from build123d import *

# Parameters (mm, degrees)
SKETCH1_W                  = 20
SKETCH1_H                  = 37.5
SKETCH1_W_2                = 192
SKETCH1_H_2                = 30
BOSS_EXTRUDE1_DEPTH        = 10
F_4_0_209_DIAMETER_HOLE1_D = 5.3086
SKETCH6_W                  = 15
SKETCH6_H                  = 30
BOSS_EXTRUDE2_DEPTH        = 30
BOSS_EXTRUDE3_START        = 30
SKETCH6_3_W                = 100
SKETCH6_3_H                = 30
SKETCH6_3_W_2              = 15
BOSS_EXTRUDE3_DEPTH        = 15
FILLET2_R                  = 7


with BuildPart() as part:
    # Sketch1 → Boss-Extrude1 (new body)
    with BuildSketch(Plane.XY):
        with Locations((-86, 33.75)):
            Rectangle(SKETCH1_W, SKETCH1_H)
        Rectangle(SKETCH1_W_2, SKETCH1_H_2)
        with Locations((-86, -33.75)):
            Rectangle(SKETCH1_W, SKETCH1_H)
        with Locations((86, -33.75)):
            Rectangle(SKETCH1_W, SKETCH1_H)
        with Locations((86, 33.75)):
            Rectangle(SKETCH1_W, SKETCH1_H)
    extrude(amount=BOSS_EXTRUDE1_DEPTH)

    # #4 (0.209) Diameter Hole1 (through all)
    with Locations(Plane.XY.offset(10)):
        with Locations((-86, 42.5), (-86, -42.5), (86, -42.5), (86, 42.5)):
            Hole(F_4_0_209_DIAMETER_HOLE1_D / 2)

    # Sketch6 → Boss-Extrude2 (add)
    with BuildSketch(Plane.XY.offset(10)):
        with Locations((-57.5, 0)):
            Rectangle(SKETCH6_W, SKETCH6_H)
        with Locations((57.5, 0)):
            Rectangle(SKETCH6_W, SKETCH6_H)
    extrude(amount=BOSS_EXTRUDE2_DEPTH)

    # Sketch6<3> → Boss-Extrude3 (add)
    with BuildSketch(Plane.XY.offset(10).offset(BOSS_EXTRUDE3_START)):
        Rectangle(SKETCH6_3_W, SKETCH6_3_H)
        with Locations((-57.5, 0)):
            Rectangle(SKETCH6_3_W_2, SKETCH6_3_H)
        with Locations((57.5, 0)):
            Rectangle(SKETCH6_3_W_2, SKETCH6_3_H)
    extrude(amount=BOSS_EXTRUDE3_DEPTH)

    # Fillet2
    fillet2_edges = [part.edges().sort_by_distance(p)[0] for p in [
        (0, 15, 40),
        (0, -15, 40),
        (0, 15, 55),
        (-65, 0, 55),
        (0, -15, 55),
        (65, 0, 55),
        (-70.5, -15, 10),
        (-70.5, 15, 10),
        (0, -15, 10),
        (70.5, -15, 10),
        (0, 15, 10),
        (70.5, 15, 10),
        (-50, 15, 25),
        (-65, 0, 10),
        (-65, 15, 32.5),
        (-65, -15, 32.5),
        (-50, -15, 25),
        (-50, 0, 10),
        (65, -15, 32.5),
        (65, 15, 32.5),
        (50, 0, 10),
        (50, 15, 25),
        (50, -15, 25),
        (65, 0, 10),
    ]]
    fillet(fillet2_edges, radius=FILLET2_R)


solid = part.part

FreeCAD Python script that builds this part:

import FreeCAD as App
import Part
import Sketcher

V = App.Vector


def edges_at(feature, points):
    """Names of the edges that pass closest to the given points."""
    edges = feature.Shape.Edges
    near = lambda p: min(range(len(edges)), key=lambda i: edges[i].distToShape(Part.Vertex(*p))[0])
    return sorted({f"Edge{near(p) + 1}" for p in points})


def add_polygon(sketch, points):
    """Adds a closed chain of lines whose ends are joined by coincident constraints."""
    first, n = sketch.GeometryCount, len(points)
    for a, b in zip(points, points[1:] + points[:1]):
        sketch.addGeometry(Part.LineSegment(App.Vector(*a, 0), App.Vector(*b, 0)), False)
    for i in range(n):
        sketch.addConstraint(Sketcher.Constraint("Coincident", first + i, 2, first + (i + 1) % n, 1))

doc = App.newDocument("Part")
params = doc.addObject("Spreadsheet::Sheet", "Params")
for row, (alias, value) in enumerate([
    ("sketch1_width", "20 mm"),
    ("sketch1_width2", "152 mm"),
    ("sketch1_height", "105 mm"),
    ("sketch1_height2", "37.5 mm"),
    ("pad1_length", "10 mm"),
    ("hole_diameter", "5.3086 mm"),
    ("sketch3_width", "15 mm"),
    ("sketch3_height", "30 mm"),
    ("pad2_length", "30 mm"),
    ("sketch4_width", "130 mm"),
    ("sketch4_height", "30 mm"),
    ("pad3_length", "15 mm"),
    ("fillet_radius", "7 mm"),
], start=1):
    params.set(f"A{row}", alias)
    params.set(f"B{row}", "=" + value)
    params.setAlias(f"B{row}", alias)

body = doc.addObject("PartDesign::Body", "Body")

sketch1 = body.newObject("Sketcher::SketchObject", "Sketch")
sketch1.AttachmentSupport = (doc.getObject("XY_Plane"), [""])
sketch1.MapMode = "FlatFace"
add_polygon(sketch1, [(-96, 52), (-96, -52), (-76, -52), (-76, -15), (76, -15), (76, -52), (96, -52), (96, 52), (76, 52), (76, 15), (-76, 15), (-76, 52)])
sketch1.addConstraint(Sketcher.Constraint("Vertical", 0))
sketch1.addConstraint(Sketcher.Constraint("Horizontal", 1))
sketch1.addConstraint(Sketcher.Constraint("Vertical", 2))
sketch1.addConstraint(Sketcher.Constraint("Horizontal", 3))
sketch1.addConstraint(Sketcher.Constraint("Vertical", 4))
sketch1.addConstraint(Sketcher.Constraint("Horizontal", 5))
sketch1.addConstraint(Sketcher.Constraint("Vertical", 6))
sketch1.addConstraint(Sketcher.Constraint("Horizontal", 7))
sketch1.addConstraint(Sketcher.Constraint("Vertical", 8))
sketch1.addConstraint(Sketcher.Constraint("Horizontal", 9))
sketch1.addConstraint(Sketcher.Constraint("Vertical", 10))
sketch1.addConstraint(Sketcher.Constraint("Horizontal", 11))
sketch1.addConstraint(Sketcher.Constraint("Symmetric", 0, 2, 6, 2, -1, 1))
sketch1.addConstraint(Sketcher.Constraint("Symmetric", 2, 2, 8, 2, -1, 1))
sketch1.addConstraint(Sketcher.Constraint("Symmetric", 4, 2, 10, 2, -1, 1))
sketch1.addConstraint(Sketcher.Constraint("Symmetric", 1, 2, 4, 2, -2))
sketch1.addConstraint(Sketcher.Constraint("DistanceX", 1, 1, 1, 2, 20.0))
sketch1.addConstraint(Sketcher.Constraint("DistanceX", 3, 1, 3, 2, 152.0))
sketch1.addConstraint(Sketcher.Constraint("DistanceY", 0, 2, 0, 1, 105.0))
sketch1.addConstraint(Sketcher.Constraint("DistanceY", 2, 1, 2, 2, 37.5))
sketch1.setExpression("Constraints[28]", "Params.sketch1_width")
sketch1.setExpression("Constraints[29]", "Params.sketch1_width2")
sketch1.setExpression("Constraints[30]", "Params.sketch1_height")
sketch1.setExpression("Constraints[31]", "Params.sketch1_height2")
pad1 = body.newObject("PartDesign::Pad", "Pad")
pad1.Profile = sketch1
pad1.setExpression("Length", "Params.pad1_length")

sketch2 = body.newObject("Sketcher::SketchObject", "Sketch001")
sketch2.AttachmentSupport = (doc.getObject("XY_Plane"), [""])
sketch2.MapMode = "FlatFace"
sketch2.AttachmentOffset = App.Placement(V(0, 0, 10), App.Rotation())
sketch2.addGeometry(Part.Circle(V(-86, 42.5, 0), V(0, 0, 1), 2.7), False)
sketch2.addGeometry(Part.Circle(V(-86, -42.5, 0), V(0, 0, 1), 2.7), False)
sketch2.addGeometry(Part.Circle(V(86, -42.5, 0), V(0, 0, 1), 2.7), False)
sketch2.addGeometry(Part.Circle(V(86, 42.5, 0), V(0, 0, 1), 2.7), False)
sketch2.addConstraint(Sketcher.Constraint("Equal", 0, 1))
sketch2.addConstraint(Sketcher.Constraint("Equal", 1, 2))
sketch2.addConstraint(Sketcher.Constraint("Equal", 2, 3))
sketch2.addConstraint(Sketcher.Constraint("Symmetric", 0, 3, 2, 3, -1, 1))
sketch2.addConstraint(Sketcher.Constraint("Symmetric", 1, 3, 3, 3, -1, 1))
sketch2.addConstraint(Sketcher.Constraint("Symmetric", 1, 3, 2, 3, -2))
sketch2.addConstraint(Sketcher.Constraint("DistanceX", 0, 3, -1, 1, 86.0))
sketch2.addConstraint(Sketcher.Constraint("DistanceY", 1, 3, 0, 3, 85.0))
sketch2.addConstraint(Sketcher.Constraint("Diameter", 0, 5.3086))
doc.recompute()
hole = body.newObject("PartDesign::Hole", "Hole")
hole.Profile = sketch2
hole.ThreadType = "None"
hole.setExpression("Diameter", "Params.hole_diameter")
hole.DepthType = "ThroughAll"

sketch3 = body.newObject("Sketcher::SketchObject", "Sketch002")
sketch3.AttachmentSupport = (doc.getObject("XY_Plane"), [""])
sketch3.MapMode = "FlatFace"
sketch3.AttachmentOffset = App.Placement(V(0, 0, 10), App.Rotation())
add_polygon(sketch3, [(-65, 15), (-65, -15), (-50, -15), (-50, 15)])
add_polygon(sketch3, [(50, 15), (50, -15), (65, -15), (65, 15)])
sketch3.addConstraint(Sketcher.Constraint("Vertical", 0))
sketch3.addConstraint(Sketcher.Constraint("Horizontal", 1))
sketch3.addConstraint(Sketcher.Constraint("Vertical", 2))
sketch3.addConstraint(Sketcher.Constraint("Horizontal", 3))
sketch3.addConstraint(Sketcher.Constraint("Vertical", 4))
sketch3.addConstraint(Sketcher.Constraint("Horizontal", 5))
sketch3.addConstraint(Sketcher.Constraint("Vertical", 6))
sketch3.addConstraint(Sketcher.Constraint("Horizontal", 7))
sketch3.addConstraint(Sketcher.Constraint("Symmetric", 2, 2, 4, 2, -1, 1))
sketch3.addConstraint(Sketcher.Constraint("Symmetric", 0, 2, 6, 2, -1, 1))
sketch3.addConstraint(Sketcher.Constraint("Horizontal", 1, 2, 4, 2))
sketch3.addConstraint(Sketcher.Constraint("DistanceX", 1, 1, 1, 2, 15.0))
sketch3.addConstraint(Sketcher.Constraint("DistanceY", 0, 2, 0, 1, 30.0))
sketch3.addConstraint(Sketcher.Constraint("DistanceX", 0, 2, -1, 1, 65.0))
sketch3.setExpression("Constraints[19]", "Params.sketch3_width")
sketch3.setExpression("Constraints[20]", "Params.sketch3_height")
pad2 = body.newObject("PartDesign::Pad", "Pad001")
pad2.Profile = sketch3
pad2.setExpression("Length", "Params.pad2_length")

sketch4 = body.newObject("Sketcher::SketchObject", "Sketch003")
sketch4.AttachmentSupport = (doc.getObject("XY_Plane"), [""])
sketch4.MapMode = "FlatFace"
sketch4.AttachmentOffset = App.Placement(V(0, 0, 40), App.Rotation())
add_polygon(sketch4, [(-65, 15), (-65, -15), (65, -15), (65, 15)])
sketch4.addConstraint(Sketcher.Constraint("Vertical", 0))
sketch4.addConstraint(Sketcher.Constraint("Horizontal", 1))
sketch4.addConstraint(Sketcher.Constraint("Vertical", 2))
sketch4.addConstraint(Sketcher.Constraint("Horizontal", 3))
sketch4.addConstraint(Sketcher.Constraint("Symmetric", 0, 2, 2, 2, -1, 1))
sketch4.addConstraint(Sketcher.Constraint("DistanceX", 1, 1, 1, 2, 130.0))
sketch4.addConstraint(Sketcher.Constraint("DistanceY", 0, 2, 0, 1, 30.0))
sketch4.setExpression("Constraints[9]", "Params.sketch4_width")
sketch4.setExpression("Constraints[10]", "Params.sketch4_height")
pad3 = body.newObject("PartDesign::Pad", "Pad002")
pad3.Profile = sketch4
pad3.setExpression("Length", "Params.pad3_length")
doc.recompute()

fillet = body.newObject("PartDesign::Fillet", "Fillet")
fillet.Base = (pad3, edges_at(pad3, [
    (0, 15, 40),
    (0, -15, 40),
    (0, 15, 55),
    (-65, 0, 55),
    (0, -15, 55),
    (65, 0, 55),
    (-70.5, -15, 10),
    (-70.5, 15, 10),
    (0, -15, 10),
    (70.5, -15, 10),
    (0, 15, 10),
    (70.5, 15, 10),
    (-50, 15, 25),
    (-65, 0, 10),
    (-65, 15, 32.5),
    (-65, -15, 32.5),
    (-50, -15, 25),
    (-50, 0, 10),
    (65, -15, 32.5),
    (65, 15, 32.5),
    (50, 0, 10),
    (50, 15, 25),
    (50, -15, 25),
    (65, 0, 10),
]))
fillet.setExpression("Radius", "Params.fillet_radius")

doc.recompute()
